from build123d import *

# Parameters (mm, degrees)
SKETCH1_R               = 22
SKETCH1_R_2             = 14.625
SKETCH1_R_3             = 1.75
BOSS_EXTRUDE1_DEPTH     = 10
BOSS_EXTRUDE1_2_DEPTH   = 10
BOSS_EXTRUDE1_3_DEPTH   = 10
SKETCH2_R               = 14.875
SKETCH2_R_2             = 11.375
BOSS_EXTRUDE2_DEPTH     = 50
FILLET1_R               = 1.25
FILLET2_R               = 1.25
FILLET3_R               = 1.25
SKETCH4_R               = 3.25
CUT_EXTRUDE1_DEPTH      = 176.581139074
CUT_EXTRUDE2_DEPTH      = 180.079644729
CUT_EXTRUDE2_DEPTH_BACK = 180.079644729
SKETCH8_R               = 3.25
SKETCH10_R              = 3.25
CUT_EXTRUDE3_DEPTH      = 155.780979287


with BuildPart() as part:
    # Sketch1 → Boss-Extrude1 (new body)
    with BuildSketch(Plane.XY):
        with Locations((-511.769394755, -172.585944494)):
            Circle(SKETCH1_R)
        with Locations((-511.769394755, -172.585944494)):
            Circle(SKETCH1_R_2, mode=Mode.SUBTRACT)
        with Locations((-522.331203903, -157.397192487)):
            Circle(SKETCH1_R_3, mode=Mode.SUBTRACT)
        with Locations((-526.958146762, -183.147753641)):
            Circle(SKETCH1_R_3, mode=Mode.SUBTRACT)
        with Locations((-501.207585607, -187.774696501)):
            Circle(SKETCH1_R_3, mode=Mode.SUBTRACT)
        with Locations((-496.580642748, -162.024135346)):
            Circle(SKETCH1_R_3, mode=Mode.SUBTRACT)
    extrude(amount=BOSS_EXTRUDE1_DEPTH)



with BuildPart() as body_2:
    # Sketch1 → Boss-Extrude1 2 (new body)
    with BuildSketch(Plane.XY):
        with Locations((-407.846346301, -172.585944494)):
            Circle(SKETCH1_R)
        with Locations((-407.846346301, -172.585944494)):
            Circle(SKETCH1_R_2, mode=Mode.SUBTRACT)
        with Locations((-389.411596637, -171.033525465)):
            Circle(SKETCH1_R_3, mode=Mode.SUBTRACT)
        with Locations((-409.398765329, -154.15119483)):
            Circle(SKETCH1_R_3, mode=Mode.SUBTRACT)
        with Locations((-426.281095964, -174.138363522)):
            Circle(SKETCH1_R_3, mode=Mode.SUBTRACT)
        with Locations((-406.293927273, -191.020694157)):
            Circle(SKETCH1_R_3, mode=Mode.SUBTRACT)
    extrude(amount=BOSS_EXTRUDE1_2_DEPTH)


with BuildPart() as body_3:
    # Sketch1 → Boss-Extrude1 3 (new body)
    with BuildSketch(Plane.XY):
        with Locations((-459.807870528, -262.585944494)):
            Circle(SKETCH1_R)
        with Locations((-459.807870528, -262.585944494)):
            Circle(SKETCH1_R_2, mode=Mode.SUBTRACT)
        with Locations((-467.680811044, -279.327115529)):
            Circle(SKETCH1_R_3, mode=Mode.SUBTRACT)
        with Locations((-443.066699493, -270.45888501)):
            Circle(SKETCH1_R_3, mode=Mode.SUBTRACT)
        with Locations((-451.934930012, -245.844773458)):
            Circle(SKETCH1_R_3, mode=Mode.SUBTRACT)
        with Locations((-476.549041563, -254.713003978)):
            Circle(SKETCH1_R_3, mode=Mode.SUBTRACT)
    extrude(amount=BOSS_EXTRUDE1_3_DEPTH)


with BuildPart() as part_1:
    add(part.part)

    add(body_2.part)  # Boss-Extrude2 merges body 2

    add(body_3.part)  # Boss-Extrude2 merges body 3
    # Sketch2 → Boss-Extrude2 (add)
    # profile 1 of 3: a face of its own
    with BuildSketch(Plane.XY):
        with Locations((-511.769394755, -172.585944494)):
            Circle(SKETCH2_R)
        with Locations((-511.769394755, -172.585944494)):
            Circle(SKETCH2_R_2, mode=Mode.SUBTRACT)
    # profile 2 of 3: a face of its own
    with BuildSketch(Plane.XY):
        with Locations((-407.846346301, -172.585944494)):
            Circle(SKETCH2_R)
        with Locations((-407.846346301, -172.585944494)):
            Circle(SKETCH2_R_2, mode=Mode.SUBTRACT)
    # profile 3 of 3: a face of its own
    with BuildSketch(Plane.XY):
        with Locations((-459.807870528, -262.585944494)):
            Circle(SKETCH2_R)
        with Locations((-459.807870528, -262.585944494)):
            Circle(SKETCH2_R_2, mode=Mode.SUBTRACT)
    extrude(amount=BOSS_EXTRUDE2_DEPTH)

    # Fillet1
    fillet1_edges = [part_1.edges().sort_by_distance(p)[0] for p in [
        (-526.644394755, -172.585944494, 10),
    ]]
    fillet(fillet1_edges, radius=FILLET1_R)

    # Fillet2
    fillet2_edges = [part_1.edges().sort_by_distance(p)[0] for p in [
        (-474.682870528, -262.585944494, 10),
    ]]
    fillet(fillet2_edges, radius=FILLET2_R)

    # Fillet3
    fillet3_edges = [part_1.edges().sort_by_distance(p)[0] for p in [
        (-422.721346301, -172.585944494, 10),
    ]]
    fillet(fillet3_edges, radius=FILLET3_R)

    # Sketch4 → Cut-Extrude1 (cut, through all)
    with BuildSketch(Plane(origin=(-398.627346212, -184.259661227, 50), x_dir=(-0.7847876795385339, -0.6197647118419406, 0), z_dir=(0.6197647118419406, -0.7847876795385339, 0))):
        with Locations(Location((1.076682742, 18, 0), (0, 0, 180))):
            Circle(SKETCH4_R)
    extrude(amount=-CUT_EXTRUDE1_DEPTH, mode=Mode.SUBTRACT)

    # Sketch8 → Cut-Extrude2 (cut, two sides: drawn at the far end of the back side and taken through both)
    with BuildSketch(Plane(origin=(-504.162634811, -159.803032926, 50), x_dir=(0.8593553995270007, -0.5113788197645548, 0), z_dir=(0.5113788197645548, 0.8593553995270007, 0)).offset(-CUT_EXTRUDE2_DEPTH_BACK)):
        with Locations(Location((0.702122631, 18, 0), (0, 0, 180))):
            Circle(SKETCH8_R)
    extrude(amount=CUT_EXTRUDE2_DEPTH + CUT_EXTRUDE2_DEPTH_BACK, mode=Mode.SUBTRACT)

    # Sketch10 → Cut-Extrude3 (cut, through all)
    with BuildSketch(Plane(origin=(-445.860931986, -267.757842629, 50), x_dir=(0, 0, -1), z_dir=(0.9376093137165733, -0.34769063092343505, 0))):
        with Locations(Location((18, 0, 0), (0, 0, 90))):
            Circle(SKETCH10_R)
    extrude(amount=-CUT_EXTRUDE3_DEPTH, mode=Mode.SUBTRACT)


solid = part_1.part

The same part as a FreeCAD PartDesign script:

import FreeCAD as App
import Part
import Sketcher
from FreeCAD import Vector


def edges_at(feature, points):
    """Names of the edges that pass closest to the given points."""
    edges = feature.Shape.Edges
    near = lambda p: min(range(len(edges)), key=lambda i: edges[i].distToShape(Part.Vertex(*p))[0])
    return sorted({f"Edge{near(p) + 1}" for p in points})

doc = App.newDocument("Part")
body = doc.addObject("PartDesign::Body", "Body")

# Sketch on XY plane
sketch1 = body.newObject("Sketcher::SketchObject", "Sketch")
sketch1.AttachmentSupport = (doc.getObject("XY_Plane"), [""])
sketch1.MapMode = "FlatFace"
sketch1.addGeometry([
    Part.Circle(Vector(-511.8, -172.6, 0), Vector(0, 0, 1), 22),  # 0
    Part.Circle(Vector(-527, -183.1, 0), Vector(0, 0, 1), 1.8),  # 1
    Part.Circle(Vector(-501.2, -187.8, 0), Vector(0, 0, 1), 1.8),  # 2
    Part.Circle(Vector(-511.8, -172.6, 0), Vector(0, 0, 1), 14.6),  # 3
    Part.Circle(Vector(-522.3, -157.4, 0), Vector(0, 0, 1), 1.8),  # 4
    Part.Circle(Vector(-496.6, -162, 0), Vector(0, 0, 1), 1.8),  # 5
], False)
sketch1.addConstraint([
    Sketcher.Constraint("Coincident", 3, 3, 0, 3),
    Sketcher.Constraint("Equal", 1, 2),
    Sketcher.Constraint("Equal", 2, 4),
    Sketcher.Constraint("Equal", 4, 5),
    Sketcher.Constraint("Diameter", 0, 44.0),
    Sketcher.Constraint("Diameter", 1, 3.5),
    Sketcher.Constraint("Diameter", 3, 29.25),
    Sketcher.Constraint("DistanceY", 1, 3, 0, 3, 10.561809),
    Sketcher.Constraint("DistanceX", 0, 3, 2, 3, 10.561809),
    Sketcher.Constraint("DistanceX", 1, 3, 2, 3, 25.750561),
    Sketcher.Constraint("DistanceX", 4, 3, 0, 3, 10.561809),
    Sketcher.Constraint("DistanceY", 1, 3, 4, 3, 25.750561),
    Sketcher.Constraint("DistanceY", 0, 3, 5, 3, 10.561809),
    Sketcher.Constraint("DistanceX", 4, 3, 5, 3, 25.750561),
    Sketcher.Constraint("DistanceY", 2, 3, 5, 3, 25.750561),
    Sketcher.Constraint("DistanceX", 0, 3, -1, 1, 511.769395),
    Sketcher.Constraint("DistanceY", 0, 3, -1, 1, 172.585944),
])
pad1 = body.newObject("PartDesign::Pad", "Pad")
pad1.Profile = sketch1
pad1.Length = 10
body2 = doc.addObject("PartDesign::Body", "Body001")

# Sketch on XY plane
sketch2 = body2.newObject("Sketcher::SketchObject", "Sketch001")
sketch2.AttachmentSupport = (doc.getObject("XY_Plane001"), [""])
sketch2.MapMode = "FlatFace"
sketch2.addGeometry([
    Part.Circle(Vector(-407.8, -172.6, 0), Vector(0, 0, 1), 22),  # 0
    Part.Circle(Vector(-426.3, -174.1, 0), Vector(0, 0, 1), 1.8),  # 1
    Part.Circle(Vector(-407.8, -172.6, 0), Vector(0, 0, 1), 14.6),  # 2
    Part.Circle(Vector(-406.3, -191, 0), Vector(0, 0, 1), 1.8),  # 3
    Part.Circle(Vector(-409.4, -154.2, 0), Vector(0, 0, 1), 1.8),  # 4
    Part.Circle(Vector(-389.4, -171, 0), Vector(0, 0, 1), 1.8),  # 5
], False)
sketch2.addConstraint([
    Sketcher.Constraint("Coincident", 2, 3, 0, 3),
    Sketcher.Constraint("Equal", 1, 3),
    Sketcher.Constraint("Equal", 3, 4),
    Sketcher.Constraint("Equal", 4, 5),
    Sketcher.Constraint("Diameter", 0, 44.0),
    Sketcher.Constraint("Diameter", 1, 3.5),
    Sketcher.Constraint("Diameter", 2, 29.25),
    Sketcher.Constraint("DistanceY", 3, 3, 4, 3, 36.869499),
    Sketcher.Constraint("DistanceX", 1, 3, 5, 3, 36.869499),
    Sketcher.Constraint("DistanceX", 1, 3, 0, 3, 18.43475),
    Sketcher.Constraint("DistanceY", 1, 3, 0, 3, 1.552419),
    Sketcher.Constraint("DistanceX", 0, 3, 3, 3, 1.552419),
    Sketcher.Constraint("DistanceY", 3, 3, 0, 3, 18.43475),
    Sketcher.Constraint("DistanceX", 4, 3, 0, 3, 1.552419),
    Sketcher.Constraint("DistanceY", 0, 3, 5, 3, 1.552419),
    Sketcher.Constraint("DistanceX", 0, 3, -1, 1, 407.846346),
    Sketcher.Constraint("DistanceY", 0, 3, -1, 1, 172.585944),
])
pad2 = body2.newObject("PartDesign::Pad", "Pad001")
pad2.Profile = sketch2
pad2.Length = 10
body3 = doc.addObject("PartDesign::Body", "Body002")

# Sketch on XY plane
sketch3 = body3.newObject("Sketcher::SketchObject", "Sketch002")
sketch3.AttachmentSupport = (doc.getObject("XY_Plane002"), [""])
sketch3.MapMode = "FlatFace"
sketch3.addGeometry([
    Part.Circle(Vector(-459.8, -262.6, 0), Vector(0, 0, 1), 22),  # 0
    Part.Circle(Vector(-467.7, -279.3, 0), Vector(0, 0, 1), 1.8),  # 1
    Part.Circle(Vector(-459.8, -262.6, 0), Vector(0, 0, 1), 14.6),  # 2
    Part.Circle(Vector(-443.1, -270.5, 0), Vector(0, 0, 1), 1.8),  # 3
    Part.Circle(Vector(-476.5, -254.7, 0), Vector(0, 0, 1), 1.8),  # 4
    Part.Circle(Vector(-451.9, -245.8, 0), Vector(0, 0, 1), 1.8),  # 5
], False)
sketch3.addConstraint([
    Sketcher.Constraint("Coincident", 2, 3, 0, 3),
    Sketcher.Constraint("Equal", 1, 3),
    Sketcher.Constraint("Equal", 3, 4),
    Sketcher.Constraint("Equal", 4, 5),
    Sketcher.Constraint("Diameter", 0, 44.0),
    Sketcher.Constraint("Diameter", 1, 3.5),
    Sketcher.Constraint("Diameter", 2, 29.25),
    Sketcher.Constraint("DistanceX", 3, 3, -1, 1, 443.066699),
    Sketcher.Constraint("DistanceX", 0, 3, -1, 1, 459.807871),
    Sketcher.Constraint("DistanceX", 1, 3, -1, 1, 467.680811),
    Sketcher.Constraint("DistanceX", 4, 3, -1, 1, 476.549042),
    Sketcher.Constraint("DistanceX", 5, 3, -1, 1, 451.93493),
    Sketcher.Constraint("DistanceY", 1, 3, 0, 3, 16.741171),
    Sketcher.Constraint("DistanceY", 3, 3, 0, 3, 7.872941),
    Sketcher.Constraint("DistanceY", 0, 3, 4, 3, 7.872941),
    Sketcher.Constraint("DistanceY", 0, 3, 5, 3, 16.741171),
    Sketcher.Constraint("DistanceY", 0, 3, -1, 1, 262.585944),
])
pad3 = body3.newObject("PartDesign::Pad", "Pad002")
pad3.Profile = sketch3
pad3.Length = 10
body.AllowCompound = True
doc.recompute()

boolean = body.newObject("PartDesign::Boolean", "Boolean")
boolean.Type = "Fuse"
boolean.addObjects([body2])
doc.recompute()

boolean2 = body.newObject("PartDesign::Boolean", "Boolean001")
boolean2.Type = "Fuse"
boolean2.addObjects([body3])

# Sketch on XY plane
sketch4 = body.newObject("Sketcher::SketchObject", "Sketch003")
sketch4.AttachmentSupport = (doc.getObject("XY_Plane"), [""])
sketch4.MapMode = "FlatFace"
sketch4.addGeometry([
    Part.Circle(Vector(-512, -173, 0), Vector(0, 0, 1), 15),  # 0
    Part.Circle(Vector(-512, -173, 0), Vector(0, 0, 1), 11),  # 1
    Part.Circle(Vector(-408, -173, 0), Vector(0, 0, 1), 15),  # 2
    Part.Circle(Vector(-408, -173, 0), Vector(0, 0, 1), 11),  # 3
    Part.Circle(Vector(-460, -263, 0), Vector(0, 0, 1), 15),  # 4
    Part.Circle(Vector(-460, -263, 0), Vector(0, 0, 1), 11),  # 5
], False)
sketch4.addConstraint([
    Sketcher.Constraint("Coincident", 1, 3, 0, 3),
    Sketcher.Constraint("Coincident", 3, 3, 2, 3),
    Sketcher.Constraint("Coincident", 5, 3, 4, 3),
    Sketcher.Constraint("Equal", 0, 2),
    Sketcher.Constraint("Equal", 1, 3),
    Sketcher.Constraint("Equal", 2, 4),
    Sketcher.Constraint("Equal", 3, 5),
    Sketcher.Constraint("Horizontal", 1, 3, 2, 3),
    Sketcher.Constraint("Diameter", 0, 29.75),
    Sketcher.Constraint("Diameter", 1, 22.75),
    Sketcher.Constraint("DistanceY", 4, 3, 0, 3, 90.0),
    Sketcher.Constraint("DistanceX", 4, 3, -1, 1, 459.807871),
    Sketcher.Constraint("DistanceX", 0, 3, 2, 3, 103.923048),
    Sketcher.Constraint("DistanceX", 0, 3, -1, 1, 511.769395),
    Sketcher.Constraint("DistanceY", 0, 3, -1, 1, 172.585944),
])
pad4 = body.newObject("PartDesign::Pad", "Pad003")
pad4.Profile = sketch4
pad4.Length = 50
doc.recompute()

fillet = body.newObject("PartDesign::Fillet", "Fillet")
fillet.Base = (pad4, edges_at(pad4, [(-526.644, -172.586, 10)]))
fillet.Radius = 1.25
doc.recompute()

fillet2 = body.newObject("PartDesign::Fillet", "Fillet001")
fillet2.Base = (fillet, edges_at(fillet, [(-474.683, -262.586, 10)]))
fillet2.Radius = 1.25
doc.recompute()

fillet3 = body.newObject("PartDesign::Fillet", "Fillet002")
fillet3.Base = (fillet2, edges_at(fillet2, [(-422.721, -172.586, 10)]))
fillet3.Radius = 1.25

# Sketch on an angled plane
sketch5 = body.newObject("Sketcher::SketchObject", "Sketch004")
sketch5.Placement = App.Placement(Vector(-398.627346, -184.259661, 50), App.Rotation(Vector(-0.78478768, -0.619764712, 0), Vector(0, 0, -1.000000001), Vector(0.619764712, -0.78478768, 0), "ZXY"))
sketch5.addGeometry(Part.Circle(Vector(1.1, 18, 0), Vector(0, 0, 1), 3.2), False)
sketch5.addConstraint([
    Sketcher.Constraint("Diameter", 0, 6.5),
    Sketcher.Constraint("DistanceY", -1, 1, 0, 3, 18.0),
    Sketcher.Constraint("DistanceX", -1, 1, 0, 3, 1.076683),
])
pocket1 = body.newObject("PartDesign::Pocket", "Pocket")
pocket1.Profile = sketch5
pocket1.Type = "ThroughAll"

# Sketch on an angled plane
sketch6 = body.newObject("Sketcher::SketchObject", "Sketch005")
sketch6.Placement = App.Placement(Vector(-504.162635, -159.803033, 50), App.Rotation(Vector(0.8593554, -0.51137882, 0), Vector(0, 0, -1.000000001), Vector(0.51137882, 0.8593554, 0), "ZXY"))
sketch6.addGeometry(Part.Circle(Vector(0.7, 18, 0), Vector(0, 0, 1), 3.2), False)
sketch6.addConstraint([
    Sketcher.Constraint("Diameter", 0, 6.5),
    Sketcher.Constraint("DistanceY", -1, 1, 0, 3, 18.0),
    Sketcher.Constraint("DistanceX", -1, 1, 0, 3, 0.702123),
])
pocket2 = body.newObject("PartDesign::Pocket", "Pocket001")
pocket2.Profile = sketch6
pocket2.Type = "ThroughAll"
pocket2.Midplane = True

# Sketch on an angled plane
sketch7 = body.newObject("Sketcher::SketchObject", "Sketch006")
sketch7.Placement = App.Placement(Vector(-445.860932, -267.757843, 50), App.Rotation(Vector(0, 0, -1), Vector(0.347690631, 0.937609314, 0), Vector(0.937609314, -0.347690631, 0), "ZXY"))
sketch7.addGeometry(Part.Circle(Vector(18, 0, 0), Vector(0, 0, 1), 3.2), False)
sketch7.addConstraint([
    Sketcher.Constraint("PointOnObject", 0, 3, -1),
    Sketcher.Constraint("Diameter", 0, 6.5),
    Sketcher.Constraint("DistanceX", -1, 1, 0, 3, 18.0),
])
pocket3 = body.newObject("PartDesign::Pocket", "Pocket002")
pocket3.Profile = sketch7
pocket3.Type = "ThroughAll"

doc.recompute()
